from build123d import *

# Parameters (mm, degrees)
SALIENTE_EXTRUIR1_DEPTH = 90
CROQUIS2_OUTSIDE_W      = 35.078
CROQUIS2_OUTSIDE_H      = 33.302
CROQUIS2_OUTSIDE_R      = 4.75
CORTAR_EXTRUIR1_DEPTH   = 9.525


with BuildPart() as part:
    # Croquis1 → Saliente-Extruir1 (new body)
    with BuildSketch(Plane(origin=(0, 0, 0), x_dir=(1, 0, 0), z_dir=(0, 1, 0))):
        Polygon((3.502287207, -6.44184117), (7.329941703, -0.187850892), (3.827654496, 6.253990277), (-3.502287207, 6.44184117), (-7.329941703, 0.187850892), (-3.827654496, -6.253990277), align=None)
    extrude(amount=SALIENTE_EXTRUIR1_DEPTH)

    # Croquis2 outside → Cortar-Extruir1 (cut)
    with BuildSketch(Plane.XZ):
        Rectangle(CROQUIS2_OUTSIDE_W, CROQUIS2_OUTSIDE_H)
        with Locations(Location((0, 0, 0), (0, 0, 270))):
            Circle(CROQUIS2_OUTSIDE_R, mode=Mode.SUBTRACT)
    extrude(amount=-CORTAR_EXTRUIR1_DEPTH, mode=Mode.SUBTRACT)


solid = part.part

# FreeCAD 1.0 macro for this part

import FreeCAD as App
import Part
import Sketcher
from FreeCAD import Vector
Q = App.Units.Quantity


def add_polygon(sketch, points):
    """Adds a closed chain of lines whose ends are joined by coincident constraints."""
    first, n = sketch.GeometryCount, len(points)
    for a, b in zip(points, points[1:] + points[:1]):
        sketch.addGeometry(Part.LineSegment(App.Vector(*a, 0), App.Vector(*b, 0)), False)
    for i in range(n):
        sketch.addConstraint(Sketcher.Constraint("Coincident", first + i, 2, first + (i + 1) % n, 1))

doc = App.newDocument("Part")
body = doc.addObject("PartDesign::Body", "Body")

sketch1 = doc.addObject("Sketcher::SketchObject", "Sketch")
body.addObject(sketch1)
sketch1.AttachmentSupport = (doc.XZ_Plane, [""])
sketch1.MapMode = "FlatFace"
add_polygon(sketch1, [(4, 6), (7, 0), (4, -6), (-4, -6), (-7, 0), (-4, 6)])
sketch1.addConstraint([
    Sketcher.Constraint("Symmetric", 0, 2, 3, 2, -1, 1),
    Sketcher.Constraint("Symmetric", 1, 2, 4, 2, -1, 1),
    Sketcher.Constraint("Symmetric", 2, 2, 5, 2, -1, 1),
    Sketcher.Constraint("Equal", 0, 1),
    Sketcher.Constraint("Equal", 1, 2),
    Sketcher.Constraint("DistanceY", 3, 2, 0, 2, Q("0.375702 mm")),
    Sketcher.Constraint("Distance", 0, Q("7.332348 mm")),
    Sketcher.Constraint("DistanceX", -1, 1, 0, 2, Q("7.329942 mm")),
    Sketcher.Constraint("DistanceY", 1, 2, -1, 1, Q("6.25399 mm")),
])
pad1 = doc.addObject("PartDesign::Pad", "Pad")
body.addObject(pad1)
pad1.Profile = sketch1
pad1.Length = 90
pad1.Reversed = True

sketch2 = doc.addObject("Sketcher::SketchObject", "Sketch001")
body.addObject(sketch2)
sketch2.AttachmentSupport = (doc.XZ_Plane, [""])
sketch2.MapMode = "FlatFace"
add_polygon(sketch2, [(-17.5, 16.7), (-17.5, -16.7), (17.5, -16.7), (17.5, 16.7)])
sketch2.addGeometry(Part.Circle(Vector(0, 0, 0), Vector(0, 0, 1), 4.8), False)
sketch2.addConstraint([
    Sketcher.Constraint("Vertical", 0),
    Sketcher.Constraint("Horizontal", 1),
    Sketcher.Constraint("Vertical", 2),
    Sketcher.Constraint("Horizontal", 3),
    Sketcher.Constraint("Coincident", 4, 3, -1, 1),
    Sketcher.Constraint("Symmetric", 0, 2, 2, 2, -1, 1),
    Sketcher.Constraint("Diameter", 4, Q("9.5 mm")),
    Sketcher.Constraint("DistanceX", 1, 1, 1, 2, Q("35.078 mm")),
    Sketcher.Constraint("DistanceY", 0, 2, 0, 1, Q("33.302 mm")),
])
pocket1 = doc.addObject("PartDesign::Pocket", "Pocket")
body.addObject(pocket1)
pocket1.Profile = sketch2
pocket1.Length = 9.525

doc.recompute()
